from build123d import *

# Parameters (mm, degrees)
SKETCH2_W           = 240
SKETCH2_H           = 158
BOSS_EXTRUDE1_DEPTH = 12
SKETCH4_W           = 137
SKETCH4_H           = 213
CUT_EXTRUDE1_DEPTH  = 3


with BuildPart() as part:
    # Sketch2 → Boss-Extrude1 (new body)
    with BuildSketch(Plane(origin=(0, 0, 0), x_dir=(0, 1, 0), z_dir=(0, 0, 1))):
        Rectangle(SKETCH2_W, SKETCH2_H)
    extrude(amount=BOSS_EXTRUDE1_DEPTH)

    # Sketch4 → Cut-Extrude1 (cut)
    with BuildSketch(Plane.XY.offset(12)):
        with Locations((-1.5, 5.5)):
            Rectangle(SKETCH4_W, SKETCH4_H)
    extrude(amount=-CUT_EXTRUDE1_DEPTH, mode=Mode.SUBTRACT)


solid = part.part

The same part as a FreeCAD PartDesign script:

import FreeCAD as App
import Part
import Sketcher

V = App.Vector

doc = App.newDocument("Part")
body = doc.addObject("PartDesign::Body", "Body")

# Sketch on XY plane
sketch1 = body.newObject("Sketcher::SketchObject", "Sketch")
sketch1.AttachmentSupport = (doc.getObject("XY_Plane"), [""])
sketch1.MapMode = "FlatFace"
sketch1.addGeometry([
    Part.LineSegment(V(-79, -120, 0), V(79, -120, 0)),
    Part.LineSegment(V(79, -120, 0), V(79, 120, 0)),
    Part.LineSegment(V(79, 120, 0), V(-79, 120, 0)),
    Part.LineSegment(V(-79, 120, 0), V(-79, -120, 0)),
], False)
sketch1.addConstraint([
    Sketcher.Constraint("Coincident", 0, 2, 1, 1),
    Sketcher.Constraint("Coincident", 1, 2, 2, 1),
    Sketcher.Constraint("Coincident", 2, 2, 3, 1),
    Sketcher.Constraint("Coincident", 3, 2, 0, 1),
    Sketcher.Constraint("Horizontal", 0),
    Sketcher.Constraint("Vertical", 1),
    Sketcher.Constraint("Horizontal", 2),
    Sketcher.Constraint("Vertical", 3),
    Sketcher.Constraint("Symmetric", 0, 2, 2, 2, -1, 1),
    Sketcher.Constraint("DistanceX", 0, 1, 0, 2, 158.0),
    Sketcher.Constraint("DistanceY", 1, 1, 1, 2, 240.0),
])
pad1 = body.newObject("PartDesign::Pad", "Pad")
pad1.Profile = sketch1
pad1.Length = 12

# Sketch on XY plane
sketch2 = body.newObject("Sketcher::SketchObject", "Sketch001")
sketch2.AttachmentSupport = (doc.getObject("XY_Plane"), [""])
sketch2.MapMode = "FlatFace"
sketch2.AttachmentOffset = App.Placement(V(0, 0, 12), App.Rotation())
sketch2.addGeometry([
    Part.LineSegment(V(-70, 112, 0), V(-70, -101, 0)),
    Part.LineSegment(V(-70, -101, 0), V(67, -101, 0)),
    Part.LineSegment(V(67, -101, 0), V(67, 112, 0)),
    Part.LineSegment(V(67, 112, 0), V(-70, 112, 0)),
], False)
sketch2.addConstraint([
    Sketcher.Constraint("Coincident", 0, 2, 1, 1),
    Sketcher.Constraint("Coincident", 1, 2, 2, 1),
    Sketcher.Constraint("Coincident", 2, 2, 3, 1),
    Sketcher.Constraint("Coincident", 3, 2, 0, 1),
    Sketcher.Constraint("Vertical", 0),
    Sketcher.Constraint("Horizontal", 1),
    Sketcher.Constraint("Vertical", 2),
    Sketcher.Constraint("Horizontal", 3),
    Sketcher.Constraint("DistanceX", 1, 1, 1, 2, 137.0),
    Sketcher.Constraint("DistanceY", 0, 2, 0, 1, 213.0),
    Sketcher.Constraint("DistanceX", 0, 2, -1, 1, 70.0),
    Sketcher.Constraint("DistanceY", 0, 2, -1, 1, 101.0),
])
pocket1 = body.newObject("PartDesign::Pocket", "Pocket")
pocket1.Profile = sketch2
pocket1.Length = 3

doc.recompute()
